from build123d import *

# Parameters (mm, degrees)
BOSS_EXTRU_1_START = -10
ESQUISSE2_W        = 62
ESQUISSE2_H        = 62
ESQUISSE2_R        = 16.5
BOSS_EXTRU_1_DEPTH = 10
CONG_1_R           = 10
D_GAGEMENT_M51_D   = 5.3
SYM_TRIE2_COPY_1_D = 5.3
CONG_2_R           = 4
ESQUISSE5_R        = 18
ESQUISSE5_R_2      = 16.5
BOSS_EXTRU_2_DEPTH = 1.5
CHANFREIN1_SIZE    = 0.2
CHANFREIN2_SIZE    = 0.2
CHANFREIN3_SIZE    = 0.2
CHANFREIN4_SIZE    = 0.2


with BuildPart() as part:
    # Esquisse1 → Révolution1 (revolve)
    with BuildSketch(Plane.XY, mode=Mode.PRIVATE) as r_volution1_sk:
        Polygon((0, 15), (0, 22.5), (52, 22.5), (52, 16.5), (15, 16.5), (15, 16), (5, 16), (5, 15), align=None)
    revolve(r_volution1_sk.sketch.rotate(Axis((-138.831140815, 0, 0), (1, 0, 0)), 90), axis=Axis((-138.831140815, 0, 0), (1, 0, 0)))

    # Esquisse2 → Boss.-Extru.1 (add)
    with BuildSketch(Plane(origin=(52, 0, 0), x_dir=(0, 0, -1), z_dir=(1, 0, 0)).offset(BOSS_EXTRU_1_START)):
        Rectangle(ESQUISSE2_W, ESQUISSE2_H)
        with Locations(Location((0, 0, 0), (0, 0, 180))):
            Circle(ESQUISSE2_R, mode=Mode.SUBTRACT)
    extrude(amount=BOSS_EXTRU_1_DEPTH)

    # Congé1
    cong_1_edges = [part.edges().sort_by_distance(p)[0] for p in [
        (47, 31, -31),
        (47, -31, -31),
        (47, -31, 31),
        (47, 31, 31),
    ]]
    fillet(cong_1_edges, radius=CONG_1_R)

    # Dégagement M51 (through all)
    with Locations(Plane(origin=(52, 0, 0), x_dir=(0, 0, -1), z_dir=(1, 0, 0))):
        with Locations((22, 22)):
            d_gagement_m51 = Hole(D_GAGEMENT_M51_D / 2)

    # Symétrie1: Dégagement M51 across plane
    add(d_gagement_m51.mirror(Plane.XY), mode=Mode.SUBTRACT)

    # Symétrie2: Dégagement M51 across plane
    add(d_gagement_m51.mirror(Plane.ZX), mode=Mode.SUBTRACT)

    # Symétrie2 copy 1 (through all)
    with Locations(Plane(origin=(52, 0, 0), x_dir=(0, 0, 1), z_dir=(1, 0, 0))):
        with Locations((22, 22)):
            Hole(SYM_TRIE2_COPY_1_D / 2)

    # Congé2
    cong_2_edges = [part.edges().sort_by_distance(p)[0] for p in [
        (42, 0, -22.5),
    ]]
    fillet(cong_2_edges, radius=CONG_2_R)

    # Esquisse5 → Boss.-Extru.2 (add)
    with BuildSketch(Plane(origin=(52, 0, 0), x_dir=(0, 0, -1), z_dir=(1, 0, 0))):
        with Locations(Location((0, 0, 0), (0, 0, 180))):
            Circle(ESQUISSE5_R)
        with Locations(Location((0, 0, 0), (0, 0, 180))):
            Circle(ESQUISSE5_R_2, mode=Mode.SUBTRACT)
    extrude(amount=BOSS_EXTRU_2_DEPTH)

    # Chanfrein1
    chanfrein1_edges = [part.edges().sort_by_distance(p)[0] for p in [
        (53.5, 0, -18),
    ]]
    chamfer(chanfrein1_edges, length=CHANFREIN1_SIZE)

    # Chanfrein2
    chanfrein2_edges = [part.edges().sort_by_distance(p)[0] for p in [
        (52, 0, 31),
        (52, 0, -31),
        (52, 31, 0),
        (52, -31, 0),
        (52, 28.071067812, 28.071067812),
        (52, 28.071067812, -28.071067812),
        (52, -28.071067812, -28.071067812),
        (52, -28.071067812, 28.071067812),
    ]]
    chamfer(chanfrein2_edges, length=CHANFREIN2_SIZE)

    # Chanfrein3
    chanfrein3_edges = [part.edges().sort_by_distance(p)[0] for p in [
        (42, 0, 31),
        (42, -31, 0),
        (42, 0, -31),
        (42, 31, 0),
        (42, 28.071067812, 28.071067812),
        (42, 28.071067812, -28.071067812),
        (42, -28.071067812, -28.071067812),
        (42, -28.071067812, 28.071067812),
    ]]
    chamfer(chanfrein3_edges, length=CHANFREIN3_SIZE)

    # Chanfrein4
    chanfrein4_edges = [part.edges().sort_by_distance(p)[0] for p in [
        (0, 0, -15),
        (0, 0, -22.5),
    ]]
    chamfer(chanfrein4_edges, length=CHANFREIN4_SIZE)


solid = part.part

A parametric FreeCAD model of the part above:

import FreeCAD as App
import Part
import Sketcher

V = App.Vector
Q = App.Units.Quantity


def edges_at(feature, points):
    """Names of the edges that pass closest to the given points."""
    edges = feature.Shape.Edges
    near = lambda p: min(range(len(edges)), key=lambda i: edges[i].distToShape(Part.Vertex(*p))[0])
    return sorted({f"Edge{near(p) + 1}" for p in points})


def add_polygon(sketch, points):
    """Adds a closed chain of lines whose ends are joined by coincident constraints."""
    first, n = sketch.GeometryCount, len(points)
    for a, b in zip(points, points[1:] + points[:1]):
        sketch.addGeometry(Part.LineSegment(App.Vector(*a, 0), App.Vector(*b, 0)), False)
    for i in range(n):
        sketch.addConstraint(Sketcher.Constraint("Coincident", first + i, 2, first + (i + 1) % n, 1))

doc = App.newDocument("Part")
params = doc.addObject("Spreadsheet::Sheet", "Params")
for row, (alias, value) in enumerate([
    ("sketch1_width", "5 mm"),
    ("sketch1_width2", "10 mm"),
    ("sketch1_width3", "37 mm"),
    ("sketch1_height", "1 mm"),
    ("sketch1_height2", "6 mm"),
    ("revolution_angle", "360 deg"),
    ("sketch2_diameter", "33 mm"),
    ("sketch2_width", "62 mm"),
    ("pad1_length", "10 mm"),
    ("fillet_radius", "10 mm"),
    ("sketch3_diameter", "5.3 mm"),
    ("hole_diameter", "5.3 mm"),
    ("sketch4_diameter", "5.3 mm"),
    ("hole2_diameter", "5.3 mm"),
    ("fillet2_radius", "4 mm"),
    ("sketch5_diameter", "36 mm"),
    ("sketch5_diameter2", "33 mm"),
    ("pad2_length", "1.5 mm"),
    ("chamfer_size", "0.2 mm"),
    ("chamfer2_size", "0.2 mm"),
    ("chamfer3_size", "0.2 mm"),
    ("chamfer4_size", "0.2 mm"),
], start=1):
    params.set(f"A{row}", alias)
    params.set(f"B{row}", "=" + value)
    params.setAlias(f"B{row}", alias)

body = doc.addObject("PartDesign::Body", "Body")

# Sketch on XY plane
sketch1 = body.newObject("Sketcher::SketchObject", "Sketch")
sketch1.AttachmentSupport = (doc.getObject("XY_Plane"), [""])
sketch1.MapMode = "FlatFace"
add_polygon(sketch1, [(0, 22.5), (0, 15), (5, 15), (5, 16), (15, 16), (15, 16.5), (52, 16.5), (52, 22.5)])  # lines 0-7
sketch1.addConstraint([
    Sketcher.Constraint("Vertical", 0),
    Sketcher.Constraint("Horizontal", 1),
    Sketcher.Constraint("Vertical", 2),
    Sketcher.Constraint("Horizontal", 3),
    Sketcher.Constraint("Vertical", 4),
    Sketcher.Constraint("Horizontal", 5),
    Sketcher.Constraint("Vertical", 6),
    Sketcher.Constraint("Horizontal", 7),
    Sketcher.Constraint("PointOnObject", 0, 2, -2),
    Sketcher.Constraint("DistanceX", 1, 1, 1, 2, Q("5 mm")),
    Sketcher.Constraint("DistanceX", 3, 1, 3, 2, Q("10 mm")),
    Sketcher.Constraint("DistanceX", 5, 1, 5, 2, Q("37 mm")),
    Sketcher.Constraint("DistanceY", 2, 1, 2, 2, Q("1 mm")),
    Sketcher.Constraint("DistanceY", 6, 1, 6, 2, Q("6 mm")),
    Sketcher.Constraint("DistanceY", 0, 2, 0, 1, Q("7.5 mm")),
    Sketcher.Constraint("DistanceY", -1, 1, 0, 2, Q("15 mm")),
])
sketch1.setExpression("Constraints[17]", "Params.sketch1_width")
sketch1.setExpression("Constraints[18]", "Params.sketch1_width2")
sketch1.setExpression("Constraints[19]", "Params.sketch1_width3")
sketch1.setExpression("Constraints[20]", "Params.sketch1_height")
sketch1.setExpression("Constraints[21]", "Params.sketch1_height2")
revolution = body.newObject("PartDesign::Revolution", "Revolution")
revolution.Profile = sketch1
revolution.ReferenceAxis = (sketch1, ["H_Axis"])
revolution.setExpression("Angle", "Params.revolution_angle")

# Sketch on YZ plane
sketch2 = body.newObject("Sketcher::SketchObject", "Sketch001")
sketch2.AttachmentSupport = (doc.getObject("YZ_Plane"), [""])
sketch2.MapMode = "FlatFace"
sketch2.AttachmentOffset = App.Placement(V(0, 0, 42), App.Rotation())
add_polygon(sketch2, [(31, 31), (-31, 31), (-31, -31), (31, -31)])  # lines 0-3
sketch2.addGeometry(Part.Circle(V(0, 0, 0), V(0, 0, 1), 16.5), False)  # 4
sketch2.addConstraint([
    Sketcher.Constraint("Horizontal", 0),
    Sketcher.Constraint("Vertical", 1),
    Sketcher.Constraint("Horizontal", 2),
    Sketcher.Constraint("Vertical", 3),
    Sketcher.Constraint("Coincident", 4, 3, -1, 1),
    Sketcher.Constraint("Symmetric", 0, 2, 2, 2, -1, 1),
    Sketcher.Constraint("Equal", 2, 1),
    Sketcher.Constraint("Diameter", 4, Q("33 mm")),
    Sketcher.Constraint("DistanceX", 0, 2, 0, 1, Q("62 mm")),
])
sketch2.setExpression("Constraints[11]", "Params.sketch2_diameter")
sketch2.setExpression("Constraints[12]", "Params.sketch2_width")
pad1 = body.newObject("PartDesign::Pad", "Pad")
pad1.Profile = sketch2
pad1.setExpression("Length", "Params.pad1_length")
doc.recompute()

fillet = body.newObject("PartDesign::Fillet", "Fillet")
fillet.Base = (pad1, edges_at(pad1, [
    (47, 31, -31),
    (47, -31, -31),
    (47, -31, 31),
    (47, 31, 31),
]))
fillet.setExpression("Radius", "Params.fillet_radius")

# Sketch on YZ plane
sketch3 = body.newObject("Sketcher::SketchObject", "Sketch002")
sketch3.AttachmentSupport = (doc.getObject("YZ_Plane"), [""])
sketch3.MapMode = "FlatFace"
sketch3.AttachmentOffset = App.Placement(V(0, 0, 52), App.Rotation())
sketch3.addGeometry(Part.Circle(V(22, -22, 0), V(0, 0, 1), 2.65), False)
sketch3.addConstraint([
    Sketcher.Constraint("Diameter", 0, Q("5.3 mm")),
    Sketcher.Constraint("DistanceX", -1, 1, 0, 3, Q("22 mm")),
    Sketcher.Constraint("DistanceY", 0, 3, -1, 1, Q("22 mm")),
])
sketch3.setExpression("Constraints[0]", "Params.sketch3_diameter")
doc.recompute()
hole = body.newObject("PartDesign::Hole", "Hole")
hole.Profile = sketch3
hole.ThreadType = "None"
hole.setExpression("Diameter", "Params.hole_diameter")
hole.DepthType = "ThroughAll"
doc.recompute()

mirrored = body.newObject("PartDesign::Mirrored", "Mirrored")
mirrored.Originals = [hole]
mirrored.MirrorPlane = (doc.getObject("XY_Plane"), [""])
body.Tip = mirrored
doc.recompute()

mirrored2 = body.newObject("PartDesign::Mirrored", "Mirrored001")
mirrored2.Originals = [hole]
mirrored2.MirrorPlane = (doc.getObject("XZ_Plane"), [""])
body.Tip = mirrored2

# Sketch on YZ plane
sketch4 = body.newObject("Sketcher::SketchObject", "Sketch003")
sketch4.AttachmentSupport = (doc.getObject("YZ_Plane"), [""])
sketch4.MapMode = "FlatFace"
sketch4.AttachmentOffset = App.Placement(V(0, 0, 52), App.Rotation())
sketch4.addGeometry(Part.Circle(V(-22, 22, 0), V(0, 0, 1), 2.65), False)
sketch4.addConstraint([
    Sketcher.Constraint("Diameter", 0, Q("5.3 mm")),
    Sketcher.Constraint("DistanceX", 0, 3, -1, 1, Q("22 mm")),
    Sketcher.Constraint("DistanceY", -1, 1, 0, 3, Q("22 mm")),
])
sketch4.setExpression("Constraints[0]", "Params.sketch4_diameter")
doc.recompute()
hole2 = body.newObject("PartDesign::Hole", "Hole001")
hole2.Profile = sketch4
hole2.ThreadType = "None"
hole2.setExpression("Diameter", "Params.hole2_diameter")
hole2.DepthType = "ThroughAll"
doc.recompute()

fillet2 = body.newObject("PartDesign::Fillet", "Fillet001")
fillet2.Base = (hole2, edges_at(hole2, [(42, 0, -22.5)]))
fillet2.setExpression("Radius", "Params.fillet2_radius")

# Sketch on YZ plane
sketch5 = body.newObject("Sketcher::SketchObject", "Sketch004")
sketch5.AttachmentSupport = (doc.getObject("YZ_Plane"), [""])
sketch5.MapMode = "FlatFace"
sketch5.AttachmentOffset = App.Placement(V(0, 0, 52), App.Rotation())
sketch5.addGeometry([
    Part.Circle(V(0, 0, 0), V(0, 0, 1), 18),
    Part.Circle(V(0, 0, 0), V(0, 0, 1), 16.5),
], False)
sketch5.addConstraint([
    Sketcher.Constraint("Coincident", 0, 3, -1, 1),
    Sketcher.Constraint("Coincident", 1, 3, -1, 1),
    Sketcher.Constraint("Diameter", 0, Q("36 mm")),
    Sketcher.Constraint("Diameter", 1, Q("33 mm")),
])
sketch5.setExpression("Constraints[2]", "Params.sketch5_diameter")
sketch5.setExpression("Constraints[3]", "Params.sketch5_diameter2")
pad2 = body.newObject("PartDesign::Pad", "Pad001")
pad2.Profile = sketch5
pad2.setExpression("Length", "Params.pad2_length")
doc.recompute()

chamfer = body.newObject("PartDesign::Chamfer", "Chamfer")
chamfer.Base = (pad2, edges_at(pad2, [(53.5, 0, -18)]))
chamfer.setExpression("Size", "Params.chamfer_size")
doc.recompute()

chamfer2 = body.newObject("PartDesign::Chamfer", "Chamfer001")
chamfer2.Base = (chamfer, edges_at(chamfer, [
    (52, 0, 31),
    (52, 0, -31),
    (52, 31, 0),
    (52, -31, 0),
    (52, 28.071, 28.071),
    (52, 28.071, -28.071),
    (52, -28.071, -28.071),
    (52, -28.071, 28.071),
]))
chamfer2.setExpression("Size", "Params.chamfer2_size")
doc.recompute()

chamfer3 = body.newObject("PartDesign::Chamfer", "Chamfer002")
chamfer3.Base = (chamfer2, edges_at(chamfer2, [
    (42, 0, 31),
    (42, -31, 0),
    (42, 0, -31),
    (42, 31, 0),
    (42, 28.071, 28.071),
    (42, 28.071, -28.071),
    (42, -28.071, -28.071),
    (42, -28.071, 28.071),
]))
chamfer3.setExpression("Size", "Params.chamfer3_size")
doc.recompute()

chamfer4 = body.newObject("PartDesign::Chamfer", "Chamfer003")
chamfer4.Base = (chamfer3, edges_at(chamfer3, [(0, 0, -15), (0, 0, -22.5)]))
chamfer4.setExpression("Size", "Params.chamfer4_size")

doc.recompute()
